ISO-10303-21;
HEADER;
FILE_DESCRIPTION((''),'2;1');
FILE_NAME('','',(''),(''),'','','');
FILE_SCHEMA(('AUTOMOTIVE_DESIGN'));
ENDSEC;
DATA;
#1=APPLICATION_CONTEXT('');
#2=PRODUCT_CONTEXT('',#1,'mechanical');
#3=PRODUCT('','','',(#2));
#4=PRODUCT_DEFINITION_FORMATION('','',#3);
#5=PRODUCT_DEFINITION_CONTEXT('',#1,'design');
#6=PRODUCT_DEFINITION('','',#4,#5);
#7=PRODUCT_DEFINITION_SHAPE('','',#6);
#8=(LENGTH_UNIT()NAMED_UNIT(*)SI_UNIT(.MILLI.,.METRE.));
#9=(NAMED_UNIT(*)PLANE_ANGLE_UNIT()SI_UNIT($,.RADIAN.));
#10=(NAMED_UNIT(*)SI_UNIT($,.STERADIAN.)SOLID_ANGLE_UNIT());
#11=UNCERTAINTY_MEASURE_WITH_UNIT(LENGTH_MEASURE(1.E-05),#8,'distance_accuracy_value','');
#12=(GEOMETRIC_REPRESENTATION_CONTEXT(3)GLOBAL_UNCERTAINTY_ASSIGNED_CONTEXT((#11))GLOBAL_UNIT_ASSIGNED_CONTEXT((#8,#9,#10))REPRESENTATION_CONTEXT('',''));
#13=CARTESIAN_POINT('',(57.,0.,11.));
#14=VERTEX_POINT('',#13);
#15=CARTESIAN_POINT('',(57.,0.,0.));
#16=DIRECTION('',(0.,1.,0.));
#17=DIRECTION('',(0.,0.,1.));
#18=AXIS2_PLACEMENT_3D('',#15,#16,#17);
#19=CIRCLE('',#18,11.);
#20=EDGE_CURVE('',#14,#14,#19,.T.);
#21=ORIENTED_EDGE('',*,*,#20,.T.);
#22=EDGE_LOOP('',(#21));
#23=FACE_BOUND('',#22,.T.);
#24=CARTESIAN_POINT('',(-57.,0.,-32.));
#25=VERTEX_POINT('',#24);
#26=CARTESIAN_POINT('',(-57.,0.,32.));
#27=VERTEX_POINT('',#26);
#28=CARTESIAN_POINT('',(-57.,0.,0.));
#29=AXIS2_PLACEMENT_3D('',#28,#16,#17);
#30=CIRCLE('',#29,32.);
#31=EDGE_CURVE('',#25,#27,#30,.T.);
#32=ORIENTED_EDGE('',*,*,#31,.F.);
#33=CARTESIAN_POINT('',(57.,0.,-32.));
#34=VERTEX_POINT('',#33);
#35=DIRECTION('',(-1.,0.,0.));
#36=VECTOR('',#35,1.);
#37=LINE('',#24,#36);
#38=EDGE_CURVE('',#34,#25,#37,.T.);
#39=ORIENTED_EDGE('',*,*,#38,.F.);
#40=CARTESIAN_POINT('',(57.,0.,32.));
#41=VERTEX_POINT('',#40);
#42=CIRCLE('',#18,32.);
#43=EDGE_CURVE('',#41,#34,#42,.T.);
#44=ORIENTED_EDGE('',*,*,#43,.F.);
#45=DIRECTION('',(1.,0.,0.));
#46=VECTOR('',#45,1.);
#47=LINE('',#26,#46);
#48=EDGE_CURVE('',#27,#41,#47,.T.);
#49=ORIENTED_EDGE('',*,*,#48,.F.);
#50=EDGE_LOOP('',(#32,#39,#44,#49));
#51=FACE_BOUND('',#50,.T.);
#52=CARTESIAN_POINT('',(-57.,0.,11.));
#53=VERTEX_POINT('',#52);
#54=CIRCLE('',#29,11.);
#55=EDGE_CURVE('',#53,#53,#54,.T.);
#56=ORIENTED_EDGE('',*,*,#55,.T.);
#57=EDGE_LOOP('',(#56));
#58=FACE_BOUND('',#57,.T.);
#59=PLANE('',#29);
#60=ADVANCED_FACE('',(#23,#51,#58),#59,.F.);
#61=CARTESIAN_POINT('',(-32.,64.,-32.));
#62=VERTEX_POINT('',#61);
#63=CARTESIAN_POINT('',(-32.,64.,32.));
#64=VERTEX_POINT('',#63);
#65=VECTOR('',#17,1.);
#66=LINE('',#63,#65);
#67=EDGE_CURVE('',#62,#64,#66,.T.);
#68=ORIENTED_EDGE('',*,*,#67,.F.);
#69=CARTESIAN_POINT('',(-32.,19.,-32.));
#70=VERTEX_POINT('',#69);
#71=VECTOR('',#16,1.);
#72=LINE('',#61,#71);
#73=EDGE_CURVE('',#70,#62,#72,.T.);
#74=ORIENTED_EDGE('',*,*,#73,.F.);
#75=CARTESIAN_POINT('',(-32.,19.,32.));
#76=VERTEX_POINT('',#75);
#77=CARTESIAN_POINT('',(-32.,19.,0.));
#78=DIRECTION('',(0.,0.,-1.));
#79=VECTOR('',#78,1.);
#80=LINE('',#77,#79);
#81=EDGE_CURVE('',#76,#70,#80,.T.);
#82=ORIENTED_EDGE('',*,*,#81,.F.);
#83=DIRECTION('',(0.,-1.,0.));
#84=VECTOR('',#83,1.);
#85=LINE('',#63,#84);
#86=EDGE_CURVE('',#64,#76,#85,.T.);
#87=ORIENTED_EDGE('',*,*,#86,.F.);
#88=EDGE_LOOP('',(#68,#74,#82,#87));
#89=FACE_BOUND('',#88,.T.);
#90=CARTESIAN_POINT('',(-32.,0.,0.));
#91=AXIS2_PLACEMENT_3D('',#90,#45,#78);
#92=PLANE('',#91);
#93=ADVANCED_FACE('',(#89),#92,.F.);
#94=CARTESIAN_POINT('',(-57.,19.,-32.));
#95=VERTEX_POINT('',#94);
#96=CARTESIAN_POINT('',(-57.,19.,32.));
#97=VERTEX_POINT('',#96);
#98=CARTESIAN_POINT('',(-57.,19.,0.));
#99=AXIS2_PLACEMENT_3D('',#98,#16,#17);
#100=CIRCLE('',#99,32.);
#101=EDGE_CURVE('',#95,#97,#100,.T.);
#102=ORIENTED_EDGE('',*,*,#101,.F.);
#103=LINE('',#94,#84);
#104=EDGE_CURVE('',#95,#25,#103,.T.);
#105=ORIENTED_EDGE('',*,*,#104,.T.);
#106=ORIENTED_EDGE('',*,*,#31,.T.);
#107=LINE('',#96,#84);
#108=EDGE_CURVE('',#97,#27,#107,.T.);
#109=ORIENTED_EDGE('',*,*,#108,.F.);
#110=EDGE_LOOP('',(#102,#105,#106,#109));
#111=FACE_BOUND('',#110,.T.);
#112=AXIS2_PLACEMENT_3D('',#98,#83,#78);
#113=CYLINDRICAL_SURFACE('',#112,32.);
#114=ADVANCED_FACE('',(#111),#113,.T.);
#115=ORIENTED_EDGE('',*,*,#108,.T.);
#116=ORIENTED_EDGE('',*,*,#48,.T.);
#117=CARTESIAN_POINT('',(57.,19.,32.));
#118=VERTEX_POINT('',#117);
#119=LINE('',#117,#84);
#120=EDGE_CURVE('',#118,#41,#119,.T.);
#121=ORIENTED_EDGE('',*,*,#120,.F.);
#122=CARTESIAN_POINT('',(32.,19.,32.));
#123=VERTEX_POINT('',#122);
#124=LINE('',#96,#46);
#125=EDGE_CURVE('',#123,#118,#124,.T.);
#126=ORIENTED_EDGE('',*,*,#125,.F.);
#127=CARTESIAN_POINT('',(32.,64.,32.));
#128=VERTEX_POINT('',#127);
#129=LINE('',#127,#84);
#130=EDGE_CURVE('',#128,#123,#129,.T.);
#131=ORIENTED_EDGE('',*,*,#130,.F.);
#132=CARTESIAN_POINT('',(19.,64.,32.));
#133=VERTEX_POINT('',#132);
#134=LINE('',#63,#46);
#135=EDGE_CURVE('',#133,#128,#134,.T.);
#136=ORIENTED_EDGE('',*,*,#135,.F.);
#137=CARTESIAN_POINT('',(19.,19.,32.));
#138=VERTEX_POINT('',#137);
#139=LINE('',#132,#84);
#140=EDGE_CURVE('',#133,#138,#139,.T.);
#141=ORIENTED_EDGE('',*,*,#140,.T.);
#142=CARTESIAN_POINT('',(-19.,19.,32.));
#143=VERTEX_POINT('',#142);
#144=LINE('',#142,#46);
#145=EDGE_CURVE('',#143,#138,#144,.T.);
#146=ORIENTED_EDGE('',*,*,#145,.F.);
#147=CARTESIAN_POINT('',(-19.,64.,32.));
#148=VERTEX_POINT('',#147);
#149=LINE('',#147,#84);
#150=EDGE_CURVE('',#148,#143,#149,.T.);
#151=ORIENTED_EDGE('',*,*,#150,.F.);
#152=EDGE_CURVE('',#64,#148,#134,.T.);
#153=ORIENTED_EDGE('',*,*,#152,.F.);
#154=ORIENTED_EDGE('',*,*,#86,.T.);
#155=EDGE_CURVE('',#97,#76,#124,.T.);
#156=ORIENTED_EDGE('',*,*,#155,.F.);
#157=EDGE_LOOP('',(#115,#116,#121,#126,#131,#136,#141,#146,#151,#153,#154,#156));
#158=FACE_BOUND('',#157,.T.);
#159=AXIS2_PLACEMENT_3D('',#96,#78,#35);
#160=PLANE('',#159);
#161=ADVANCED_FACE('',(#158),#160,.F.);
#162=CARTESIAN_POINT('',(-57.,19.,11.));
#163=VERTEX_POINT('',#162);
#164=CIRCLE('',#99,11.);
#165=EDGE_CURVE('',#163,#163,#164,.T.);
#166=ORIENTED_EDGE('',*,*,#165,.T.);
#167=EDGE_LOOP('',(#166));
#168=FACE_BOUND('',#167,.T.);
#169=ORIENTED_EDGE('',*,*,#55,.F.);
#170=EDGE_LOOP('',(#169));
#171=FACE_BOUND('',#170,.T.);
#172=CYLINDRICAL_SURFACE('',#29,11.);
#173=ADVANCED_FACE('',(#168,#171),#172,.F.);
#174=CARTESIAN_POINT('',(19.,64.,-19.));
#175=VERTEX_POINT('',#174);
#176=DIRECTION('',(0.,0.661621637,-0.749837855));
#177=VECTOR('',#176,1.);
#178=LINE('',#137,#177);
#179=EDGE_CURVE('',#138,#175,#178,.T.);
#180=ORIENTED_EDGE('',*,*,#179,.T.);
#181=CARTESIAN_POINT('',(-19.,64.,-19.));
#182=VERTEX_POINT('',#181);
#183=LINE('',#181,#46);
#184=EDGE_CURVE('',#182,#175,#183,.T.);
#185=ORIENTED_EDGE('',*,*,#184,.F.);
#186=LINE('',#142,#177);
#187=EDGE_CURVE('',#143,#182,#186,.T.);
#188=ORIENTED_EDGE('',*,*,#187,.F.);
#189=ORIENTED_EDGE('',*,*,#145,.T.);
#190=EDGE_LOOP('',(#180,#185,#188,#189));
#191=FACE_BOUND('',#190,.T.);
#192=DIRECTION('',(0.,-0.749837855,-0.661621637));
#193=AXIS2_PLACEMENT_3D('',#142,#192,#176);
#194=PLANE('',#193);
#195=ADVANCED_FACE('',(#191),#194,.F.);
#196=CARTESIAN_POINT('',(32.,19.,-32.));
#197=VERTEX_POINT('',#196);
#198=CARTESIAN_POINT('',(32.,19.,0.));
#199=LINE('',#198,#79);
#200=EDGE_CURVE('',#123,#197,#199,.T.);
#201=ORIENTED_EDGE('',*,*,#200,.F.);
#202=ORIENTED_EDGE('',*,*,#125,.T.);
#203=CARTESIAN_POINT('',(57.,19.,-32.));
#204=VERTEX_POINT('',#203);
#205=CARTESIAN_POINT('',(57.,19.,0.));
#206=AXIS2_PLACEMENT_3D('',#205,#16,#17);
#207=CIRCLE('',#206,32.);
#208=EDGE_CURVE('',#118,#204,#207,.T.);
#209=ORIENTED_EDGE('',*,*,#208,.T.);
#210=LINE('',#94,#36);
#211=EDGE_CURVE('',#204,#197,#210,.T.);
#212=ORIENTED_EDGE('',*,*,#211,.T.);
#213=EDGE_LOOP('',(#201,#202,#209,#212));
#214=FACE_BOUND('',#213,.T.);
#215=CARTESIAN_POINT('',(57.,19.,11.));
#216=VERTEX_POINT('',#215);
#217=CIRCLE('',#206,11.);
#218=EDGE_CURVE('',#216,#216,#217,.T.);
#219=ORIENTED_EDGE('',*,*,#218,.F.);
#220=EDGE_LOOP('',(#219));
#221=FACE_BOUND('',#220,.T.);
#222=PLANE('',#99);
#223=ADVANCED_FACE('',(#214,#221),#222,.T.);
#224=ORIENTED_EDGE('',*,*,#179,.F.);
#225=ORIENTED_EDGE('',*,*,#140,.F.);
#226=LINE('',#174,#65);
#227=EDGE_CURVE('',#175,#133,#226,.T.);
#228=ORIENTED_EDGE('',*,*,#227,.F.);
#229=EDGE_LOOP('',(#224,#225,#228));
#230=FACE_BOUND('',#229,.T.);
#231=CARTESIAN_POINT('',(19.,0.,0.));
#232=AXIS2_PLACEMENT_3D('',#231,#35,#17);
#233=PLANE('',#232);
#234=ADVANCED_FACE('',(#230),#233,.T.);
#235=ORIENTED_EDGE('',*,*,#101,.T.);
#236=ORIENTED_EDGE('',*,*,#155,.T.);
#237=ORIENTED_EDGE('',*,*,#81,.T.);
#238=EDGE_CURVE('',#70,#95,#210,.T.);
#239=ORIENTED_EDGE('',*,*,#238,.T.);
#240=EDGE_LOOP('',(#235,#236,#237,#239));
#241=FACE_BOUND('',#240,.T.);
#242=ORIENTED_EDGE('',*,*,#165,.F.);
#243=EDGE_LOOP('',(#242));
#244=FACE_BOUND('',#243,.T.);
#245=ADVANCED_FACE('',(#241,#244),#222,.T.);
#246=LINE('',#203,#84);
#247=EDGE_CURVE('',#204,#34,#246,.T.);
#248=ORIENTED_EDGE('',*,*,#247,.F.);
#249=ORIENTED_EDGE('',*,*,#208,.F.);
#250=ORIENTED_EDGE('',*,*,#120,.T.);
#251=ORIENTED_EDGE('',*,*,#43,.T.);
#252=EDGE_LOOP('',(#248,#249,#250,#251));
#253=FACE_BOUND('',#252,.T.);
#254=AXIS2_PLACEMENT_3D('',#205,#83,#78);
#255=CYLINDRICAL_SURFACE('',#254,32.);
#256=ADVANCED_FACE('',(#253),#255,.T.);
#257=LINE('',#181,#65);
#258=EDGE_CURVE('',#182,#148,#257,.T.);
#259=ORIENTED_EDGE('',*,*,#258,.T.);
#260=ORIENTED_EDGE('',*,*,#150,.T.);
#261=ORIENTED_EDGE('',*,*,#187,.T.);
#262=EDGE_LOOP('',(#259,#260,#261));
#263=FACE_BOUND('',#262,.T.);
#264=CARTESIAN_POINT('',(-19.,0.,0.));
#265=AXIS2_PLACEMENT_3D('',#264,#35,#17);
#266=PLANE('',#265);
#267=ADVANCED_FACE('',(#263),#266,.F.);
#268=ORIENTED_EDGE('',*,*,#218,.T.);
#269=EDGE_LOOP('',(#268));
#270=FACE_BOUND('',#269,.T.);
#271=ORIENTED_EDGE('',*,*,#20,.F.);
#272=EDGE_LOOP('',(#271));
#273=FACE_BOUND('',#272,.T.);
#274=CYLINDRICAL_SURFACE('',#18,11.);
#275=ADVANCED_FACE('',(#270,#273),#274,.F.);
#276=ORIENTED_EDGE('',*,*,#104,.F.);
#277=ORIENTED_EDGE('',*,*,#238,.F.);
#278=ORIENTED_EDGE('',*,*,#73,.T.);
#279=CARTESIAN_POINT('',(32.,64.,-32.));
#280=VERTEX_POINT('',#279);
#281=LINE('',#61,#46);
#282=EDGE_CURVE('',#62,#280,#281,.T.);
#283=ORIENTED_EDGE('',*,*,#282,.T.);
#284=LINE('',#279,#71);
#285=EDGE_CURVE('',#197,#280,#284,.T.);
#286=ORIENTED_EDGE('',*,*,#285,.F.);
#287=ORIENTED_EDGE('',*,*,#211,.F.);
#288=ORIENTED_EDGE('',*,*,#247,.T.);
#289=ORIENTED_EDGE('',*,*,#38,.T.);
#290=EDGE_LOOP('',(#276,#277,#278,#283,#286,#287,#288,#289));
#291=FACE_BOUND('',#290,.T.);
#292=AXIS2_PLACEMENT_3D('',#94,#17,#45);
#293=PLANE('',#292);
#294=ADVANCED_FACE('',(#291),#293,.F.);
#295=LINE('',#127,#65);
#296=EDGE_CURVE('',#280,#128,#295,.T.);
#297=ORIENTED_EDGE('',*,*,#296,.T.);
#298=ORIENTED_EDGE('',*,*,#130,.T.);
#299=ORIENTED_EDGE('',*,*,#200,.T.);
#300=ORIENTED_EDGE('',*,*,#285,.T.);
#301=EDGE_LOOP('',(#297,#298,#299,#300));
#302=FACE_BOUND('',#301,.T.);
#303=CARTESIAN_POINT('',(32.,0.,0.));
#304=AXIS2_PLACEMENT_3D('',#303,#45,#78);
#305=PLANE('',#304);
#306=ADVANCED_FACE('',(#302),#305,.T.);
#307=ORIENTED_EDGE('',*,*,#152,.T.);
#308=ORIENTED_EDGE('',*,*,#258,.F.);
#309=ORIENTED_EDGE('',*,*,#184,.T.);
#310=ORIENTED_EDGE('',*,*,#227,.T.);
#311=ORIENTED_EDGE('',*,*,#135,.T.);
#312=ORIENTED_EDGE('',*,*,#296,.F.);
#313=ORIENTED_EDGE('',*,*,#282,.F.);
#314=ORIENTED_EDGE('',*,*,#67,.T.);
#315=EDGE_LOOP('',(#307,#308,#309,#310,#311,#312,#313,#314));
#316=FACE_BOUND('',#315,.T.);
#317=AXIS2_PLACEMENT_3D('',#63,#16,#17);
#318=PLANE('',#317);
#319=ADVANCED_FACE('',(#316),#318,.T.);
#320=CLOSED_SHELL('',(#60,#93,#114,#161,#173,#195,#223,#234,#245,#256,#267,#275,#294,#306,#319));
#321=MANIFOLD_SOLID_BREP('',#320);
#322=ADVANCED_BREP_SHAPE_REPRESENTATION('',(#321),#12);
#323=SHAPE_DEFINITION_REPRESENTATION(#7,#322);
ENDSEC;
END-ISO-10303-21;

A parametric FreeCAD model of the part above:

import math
import FreeCAD as App
import Part
import Sketcher
from FreeCAD import Vector

doc = App.newDocument("Part")
body = doc.addObject("PartDesign::Body", "Body")

# Sketch on XZ plane
sketch1 = body.newObject("Sketcher::SketchObject", "Sketch")
sketch1.AttachmentSupport = (doc.getObject("XZ_Plane"), [""])
sketch1.MapMode = "FlatFace"
sketch1.addGeometry(Part.LineSegment(Vector(57, -32, 0), Vector(-57, -32, 0)), False)
sketch1.addGeometry(Part.ArcOfCircle(Part.Circle(Vector(-57, 0, 0), Vector(0, 0, 1), 32), math.radians(90), math.radians(270)), False)
sketch1.addGeometry(Part.LineSegment(Vector(-57, 32, 0), Vector(57, 32, 0)), False)
sketch1.addGeometry(Part.ArcOfCircle(Part.Circle(Vector(57, 0, 0), Vector(0, 0, 1), 32), math.radians(-90), math.radians(90)), False)
sketch1.addConstraint(Sketcher.Constraint("Tangent", 0, 2, 1, 2))
sketch1.addConstraint(Sketcher.Constraint("Tangent", 1, 1, 2, 1))
sketch1.addConstraint(Sketcher.Constraint("Tangent", 2, 2, 3, 2))
sketch1.addConstraint(Sketcher.Constraint("Tangent", 3, 1, 0, 1))
sketch1.addConstraint(Sketcher.Constraint("Horizontal", 0))
sketch1.addConstraint(Sketcher.Constraint("Horizontal", 2))
sketch1.addConstraint(Sketcher.Constraint("Symmetric", 1, 3, 3, 3, -1, 1))
sketch1.addConstraint(Sketcher.Constraint("Radius", 1, 32.0))
sketch1.addConstraint(Sketcher.Constraint("DistanceX", 0, 2, 0, 1, 114.0))
pad1 = body.newObject("PartDesign::Pad", "Pad")
pad1.Profile = sketch1
pad1.Length = 19
pad1.Reversed = True

# Sketch on XZ plane
sketch2 = body.newObject("Sketcher::SketchObject", "Sketch001")
sketch2.AttachmentSupport = (doc.getObject("XZ_Plane"), [""])
sketch2.MapMode = "FlatFace"
sketch2.AttachmentOffset = App.Placement(Vector(0, 0, -19), App.Rotation())
sketch2.addGeometry(Part.Circle(Vector(-57, 0, 0), Vector(0, 0, 1), 11), False)
sketch2.addGeometry(Part.Circle(Vector(57, 0, 0), Vector(0, 0, 1), 11), False)
sketch2.addConstraint(Sketcher.Constraint("Equal", 0, 1))
sketch2.addConstraint(Sketcher.Constraint("Symmetric", 0, 3, 1, 3, -1, 1))
sketch2.addConstraint(Sketcher.Constraint("PointOnObject", 0, 3, -1))
sketch2.addConstraint(Sketcher.Constraint("Diameter", 0, 22.0))
sketch2.addConstraint(Sketcher.Constraint("DistanceX", 0, 3, -1, 1, 57.0))
pocket1 = body.newObject("PartDesign::Pocket", "Pocket")
pocket1.Profile = sketch2
pocket1.Length = 38
pocket1.Midplane = True

# Sketch on YZ plane
sketch3 = body.newObject("Sketcher::SketchObject", "Sketch002")
sketch3.AttachmentSupport = (doc.getObject("YZ_Plane"), [""])
sketch3.MapMode = "FlatFace"
sketch3.addGeometry(Part.LineSegment(Vector(64, 32, 0), Vector(0, 32, 0)), False)
sketch3.addGeometry(Part.LineSegment(Vector(0, 32, 0), Vector(0, -32, 0)), False)
sketch3.addGeometry(Part.LineSegment(Vector(0, -32, 0), Vector(64, -32, 0)), False)
sketch3.addGeometry(Part.LineSegment(Vector(64, -32, 0), Vector(64, 32, 0)), False)
sketch3.addConstraint(Sketcher.Constraint("Coincident", 0, 2, 1, 1))
sketch3.addConstraint(Sketcher.Constraint("Coincident", 1, 2, 2, 1))
sketch3.addConstraint(Sketcher.Constraint("Coincident", 2, 2, 3, 1))
sketch3.addConstraint(Sketcher.Constraint("Coincident", 3, 2, 0, 1))
sketch3.addConstraint(Sketcher.Constraint("Horizontal", 0))
sketch3.addConstraint(Sketcher.Constraint("Vertical", 1))
sketch3.addConstraint(Sketcher.Constraint("Horizontal", 2))
sketch3.addConstraint(Sketcher.Constraint("Vertical", 3))
sketch3.addConstraint(Sketcher.Constraint("Symmetric", 0, 2, 1, 2, -1, 1))
sketch3.addConstraint(Sketcher.Constraint("Equal", 2, 1))
sketch3.addConstraint(Sketcher.Constraint("DistanceX", 0, 2, 0, 1, 64.0))
pad2 = body.newObject("PartDesign::Pad", "Pad001")
pad2.Profile = sketch3
pad2.Type = "TwoLengths"
pad2.Length = 32
pad2.Length2 = 32

# Sketch on YZ plane
sketch4 = body.newObject("Sketcher::SketchObject", "Sketch003")
sketch4.AttachmentSupport = (doc.getObject("YZ_Plane"), [""])
sketch4.MapMode = "FlatFace"
sketch4.addGeometry(Part.LineSegment(Vector(19, 32, 0), Vector(64, -19, 0)), False)
sketch4.addGeometry(Part.LineSegment(Vector(64, -19, 0), Vector(64, 32, 0)), False)
sketch4.addGeometry(Part.LineSegment(Vector(64, 32, 0), Vector(19, 32, 0)), False)
sketch4.addConstraint(Sketcher.Constraint("Coincident", 0, 2, 1, 1))
sketch4.addConstraint(Sketcher.Constraint("Coincident", 1, 2, 2, 1))
sketch4.addConstraint(Sketcher.Constraint("Coincident", 2, 2, 0, 1))
sketch4.addConstraint(Sketcher.Constraint("Vertical", 1))
sketch4.addConstraint(Sketcher.Constraint("Horizontal", 2))
sketch4.addConstraint(Sketcher.Constraint("DistanceX", 2, 2, 2, 1, 45.0))
sketch4.addConstraint(Sketcher.Constraint("DistanceY", 1, 1, 1, 2, 51.0))
sketch4.addConstraint(Sketcher.Constraint("DistanceX", -1, 1, 0, 2, 64.0))
sketch4.addConstraint(Sketcher.Constraint("DistanceY", 0, 2, -1, 1, 19.0))
pocket2 = body.newObject("PartDesign::Pocket", "Pocket001")
pocket2.Profile = sketch4
pocket2.Length = 38
pocket2.Midplane = True

doc.recompute()
